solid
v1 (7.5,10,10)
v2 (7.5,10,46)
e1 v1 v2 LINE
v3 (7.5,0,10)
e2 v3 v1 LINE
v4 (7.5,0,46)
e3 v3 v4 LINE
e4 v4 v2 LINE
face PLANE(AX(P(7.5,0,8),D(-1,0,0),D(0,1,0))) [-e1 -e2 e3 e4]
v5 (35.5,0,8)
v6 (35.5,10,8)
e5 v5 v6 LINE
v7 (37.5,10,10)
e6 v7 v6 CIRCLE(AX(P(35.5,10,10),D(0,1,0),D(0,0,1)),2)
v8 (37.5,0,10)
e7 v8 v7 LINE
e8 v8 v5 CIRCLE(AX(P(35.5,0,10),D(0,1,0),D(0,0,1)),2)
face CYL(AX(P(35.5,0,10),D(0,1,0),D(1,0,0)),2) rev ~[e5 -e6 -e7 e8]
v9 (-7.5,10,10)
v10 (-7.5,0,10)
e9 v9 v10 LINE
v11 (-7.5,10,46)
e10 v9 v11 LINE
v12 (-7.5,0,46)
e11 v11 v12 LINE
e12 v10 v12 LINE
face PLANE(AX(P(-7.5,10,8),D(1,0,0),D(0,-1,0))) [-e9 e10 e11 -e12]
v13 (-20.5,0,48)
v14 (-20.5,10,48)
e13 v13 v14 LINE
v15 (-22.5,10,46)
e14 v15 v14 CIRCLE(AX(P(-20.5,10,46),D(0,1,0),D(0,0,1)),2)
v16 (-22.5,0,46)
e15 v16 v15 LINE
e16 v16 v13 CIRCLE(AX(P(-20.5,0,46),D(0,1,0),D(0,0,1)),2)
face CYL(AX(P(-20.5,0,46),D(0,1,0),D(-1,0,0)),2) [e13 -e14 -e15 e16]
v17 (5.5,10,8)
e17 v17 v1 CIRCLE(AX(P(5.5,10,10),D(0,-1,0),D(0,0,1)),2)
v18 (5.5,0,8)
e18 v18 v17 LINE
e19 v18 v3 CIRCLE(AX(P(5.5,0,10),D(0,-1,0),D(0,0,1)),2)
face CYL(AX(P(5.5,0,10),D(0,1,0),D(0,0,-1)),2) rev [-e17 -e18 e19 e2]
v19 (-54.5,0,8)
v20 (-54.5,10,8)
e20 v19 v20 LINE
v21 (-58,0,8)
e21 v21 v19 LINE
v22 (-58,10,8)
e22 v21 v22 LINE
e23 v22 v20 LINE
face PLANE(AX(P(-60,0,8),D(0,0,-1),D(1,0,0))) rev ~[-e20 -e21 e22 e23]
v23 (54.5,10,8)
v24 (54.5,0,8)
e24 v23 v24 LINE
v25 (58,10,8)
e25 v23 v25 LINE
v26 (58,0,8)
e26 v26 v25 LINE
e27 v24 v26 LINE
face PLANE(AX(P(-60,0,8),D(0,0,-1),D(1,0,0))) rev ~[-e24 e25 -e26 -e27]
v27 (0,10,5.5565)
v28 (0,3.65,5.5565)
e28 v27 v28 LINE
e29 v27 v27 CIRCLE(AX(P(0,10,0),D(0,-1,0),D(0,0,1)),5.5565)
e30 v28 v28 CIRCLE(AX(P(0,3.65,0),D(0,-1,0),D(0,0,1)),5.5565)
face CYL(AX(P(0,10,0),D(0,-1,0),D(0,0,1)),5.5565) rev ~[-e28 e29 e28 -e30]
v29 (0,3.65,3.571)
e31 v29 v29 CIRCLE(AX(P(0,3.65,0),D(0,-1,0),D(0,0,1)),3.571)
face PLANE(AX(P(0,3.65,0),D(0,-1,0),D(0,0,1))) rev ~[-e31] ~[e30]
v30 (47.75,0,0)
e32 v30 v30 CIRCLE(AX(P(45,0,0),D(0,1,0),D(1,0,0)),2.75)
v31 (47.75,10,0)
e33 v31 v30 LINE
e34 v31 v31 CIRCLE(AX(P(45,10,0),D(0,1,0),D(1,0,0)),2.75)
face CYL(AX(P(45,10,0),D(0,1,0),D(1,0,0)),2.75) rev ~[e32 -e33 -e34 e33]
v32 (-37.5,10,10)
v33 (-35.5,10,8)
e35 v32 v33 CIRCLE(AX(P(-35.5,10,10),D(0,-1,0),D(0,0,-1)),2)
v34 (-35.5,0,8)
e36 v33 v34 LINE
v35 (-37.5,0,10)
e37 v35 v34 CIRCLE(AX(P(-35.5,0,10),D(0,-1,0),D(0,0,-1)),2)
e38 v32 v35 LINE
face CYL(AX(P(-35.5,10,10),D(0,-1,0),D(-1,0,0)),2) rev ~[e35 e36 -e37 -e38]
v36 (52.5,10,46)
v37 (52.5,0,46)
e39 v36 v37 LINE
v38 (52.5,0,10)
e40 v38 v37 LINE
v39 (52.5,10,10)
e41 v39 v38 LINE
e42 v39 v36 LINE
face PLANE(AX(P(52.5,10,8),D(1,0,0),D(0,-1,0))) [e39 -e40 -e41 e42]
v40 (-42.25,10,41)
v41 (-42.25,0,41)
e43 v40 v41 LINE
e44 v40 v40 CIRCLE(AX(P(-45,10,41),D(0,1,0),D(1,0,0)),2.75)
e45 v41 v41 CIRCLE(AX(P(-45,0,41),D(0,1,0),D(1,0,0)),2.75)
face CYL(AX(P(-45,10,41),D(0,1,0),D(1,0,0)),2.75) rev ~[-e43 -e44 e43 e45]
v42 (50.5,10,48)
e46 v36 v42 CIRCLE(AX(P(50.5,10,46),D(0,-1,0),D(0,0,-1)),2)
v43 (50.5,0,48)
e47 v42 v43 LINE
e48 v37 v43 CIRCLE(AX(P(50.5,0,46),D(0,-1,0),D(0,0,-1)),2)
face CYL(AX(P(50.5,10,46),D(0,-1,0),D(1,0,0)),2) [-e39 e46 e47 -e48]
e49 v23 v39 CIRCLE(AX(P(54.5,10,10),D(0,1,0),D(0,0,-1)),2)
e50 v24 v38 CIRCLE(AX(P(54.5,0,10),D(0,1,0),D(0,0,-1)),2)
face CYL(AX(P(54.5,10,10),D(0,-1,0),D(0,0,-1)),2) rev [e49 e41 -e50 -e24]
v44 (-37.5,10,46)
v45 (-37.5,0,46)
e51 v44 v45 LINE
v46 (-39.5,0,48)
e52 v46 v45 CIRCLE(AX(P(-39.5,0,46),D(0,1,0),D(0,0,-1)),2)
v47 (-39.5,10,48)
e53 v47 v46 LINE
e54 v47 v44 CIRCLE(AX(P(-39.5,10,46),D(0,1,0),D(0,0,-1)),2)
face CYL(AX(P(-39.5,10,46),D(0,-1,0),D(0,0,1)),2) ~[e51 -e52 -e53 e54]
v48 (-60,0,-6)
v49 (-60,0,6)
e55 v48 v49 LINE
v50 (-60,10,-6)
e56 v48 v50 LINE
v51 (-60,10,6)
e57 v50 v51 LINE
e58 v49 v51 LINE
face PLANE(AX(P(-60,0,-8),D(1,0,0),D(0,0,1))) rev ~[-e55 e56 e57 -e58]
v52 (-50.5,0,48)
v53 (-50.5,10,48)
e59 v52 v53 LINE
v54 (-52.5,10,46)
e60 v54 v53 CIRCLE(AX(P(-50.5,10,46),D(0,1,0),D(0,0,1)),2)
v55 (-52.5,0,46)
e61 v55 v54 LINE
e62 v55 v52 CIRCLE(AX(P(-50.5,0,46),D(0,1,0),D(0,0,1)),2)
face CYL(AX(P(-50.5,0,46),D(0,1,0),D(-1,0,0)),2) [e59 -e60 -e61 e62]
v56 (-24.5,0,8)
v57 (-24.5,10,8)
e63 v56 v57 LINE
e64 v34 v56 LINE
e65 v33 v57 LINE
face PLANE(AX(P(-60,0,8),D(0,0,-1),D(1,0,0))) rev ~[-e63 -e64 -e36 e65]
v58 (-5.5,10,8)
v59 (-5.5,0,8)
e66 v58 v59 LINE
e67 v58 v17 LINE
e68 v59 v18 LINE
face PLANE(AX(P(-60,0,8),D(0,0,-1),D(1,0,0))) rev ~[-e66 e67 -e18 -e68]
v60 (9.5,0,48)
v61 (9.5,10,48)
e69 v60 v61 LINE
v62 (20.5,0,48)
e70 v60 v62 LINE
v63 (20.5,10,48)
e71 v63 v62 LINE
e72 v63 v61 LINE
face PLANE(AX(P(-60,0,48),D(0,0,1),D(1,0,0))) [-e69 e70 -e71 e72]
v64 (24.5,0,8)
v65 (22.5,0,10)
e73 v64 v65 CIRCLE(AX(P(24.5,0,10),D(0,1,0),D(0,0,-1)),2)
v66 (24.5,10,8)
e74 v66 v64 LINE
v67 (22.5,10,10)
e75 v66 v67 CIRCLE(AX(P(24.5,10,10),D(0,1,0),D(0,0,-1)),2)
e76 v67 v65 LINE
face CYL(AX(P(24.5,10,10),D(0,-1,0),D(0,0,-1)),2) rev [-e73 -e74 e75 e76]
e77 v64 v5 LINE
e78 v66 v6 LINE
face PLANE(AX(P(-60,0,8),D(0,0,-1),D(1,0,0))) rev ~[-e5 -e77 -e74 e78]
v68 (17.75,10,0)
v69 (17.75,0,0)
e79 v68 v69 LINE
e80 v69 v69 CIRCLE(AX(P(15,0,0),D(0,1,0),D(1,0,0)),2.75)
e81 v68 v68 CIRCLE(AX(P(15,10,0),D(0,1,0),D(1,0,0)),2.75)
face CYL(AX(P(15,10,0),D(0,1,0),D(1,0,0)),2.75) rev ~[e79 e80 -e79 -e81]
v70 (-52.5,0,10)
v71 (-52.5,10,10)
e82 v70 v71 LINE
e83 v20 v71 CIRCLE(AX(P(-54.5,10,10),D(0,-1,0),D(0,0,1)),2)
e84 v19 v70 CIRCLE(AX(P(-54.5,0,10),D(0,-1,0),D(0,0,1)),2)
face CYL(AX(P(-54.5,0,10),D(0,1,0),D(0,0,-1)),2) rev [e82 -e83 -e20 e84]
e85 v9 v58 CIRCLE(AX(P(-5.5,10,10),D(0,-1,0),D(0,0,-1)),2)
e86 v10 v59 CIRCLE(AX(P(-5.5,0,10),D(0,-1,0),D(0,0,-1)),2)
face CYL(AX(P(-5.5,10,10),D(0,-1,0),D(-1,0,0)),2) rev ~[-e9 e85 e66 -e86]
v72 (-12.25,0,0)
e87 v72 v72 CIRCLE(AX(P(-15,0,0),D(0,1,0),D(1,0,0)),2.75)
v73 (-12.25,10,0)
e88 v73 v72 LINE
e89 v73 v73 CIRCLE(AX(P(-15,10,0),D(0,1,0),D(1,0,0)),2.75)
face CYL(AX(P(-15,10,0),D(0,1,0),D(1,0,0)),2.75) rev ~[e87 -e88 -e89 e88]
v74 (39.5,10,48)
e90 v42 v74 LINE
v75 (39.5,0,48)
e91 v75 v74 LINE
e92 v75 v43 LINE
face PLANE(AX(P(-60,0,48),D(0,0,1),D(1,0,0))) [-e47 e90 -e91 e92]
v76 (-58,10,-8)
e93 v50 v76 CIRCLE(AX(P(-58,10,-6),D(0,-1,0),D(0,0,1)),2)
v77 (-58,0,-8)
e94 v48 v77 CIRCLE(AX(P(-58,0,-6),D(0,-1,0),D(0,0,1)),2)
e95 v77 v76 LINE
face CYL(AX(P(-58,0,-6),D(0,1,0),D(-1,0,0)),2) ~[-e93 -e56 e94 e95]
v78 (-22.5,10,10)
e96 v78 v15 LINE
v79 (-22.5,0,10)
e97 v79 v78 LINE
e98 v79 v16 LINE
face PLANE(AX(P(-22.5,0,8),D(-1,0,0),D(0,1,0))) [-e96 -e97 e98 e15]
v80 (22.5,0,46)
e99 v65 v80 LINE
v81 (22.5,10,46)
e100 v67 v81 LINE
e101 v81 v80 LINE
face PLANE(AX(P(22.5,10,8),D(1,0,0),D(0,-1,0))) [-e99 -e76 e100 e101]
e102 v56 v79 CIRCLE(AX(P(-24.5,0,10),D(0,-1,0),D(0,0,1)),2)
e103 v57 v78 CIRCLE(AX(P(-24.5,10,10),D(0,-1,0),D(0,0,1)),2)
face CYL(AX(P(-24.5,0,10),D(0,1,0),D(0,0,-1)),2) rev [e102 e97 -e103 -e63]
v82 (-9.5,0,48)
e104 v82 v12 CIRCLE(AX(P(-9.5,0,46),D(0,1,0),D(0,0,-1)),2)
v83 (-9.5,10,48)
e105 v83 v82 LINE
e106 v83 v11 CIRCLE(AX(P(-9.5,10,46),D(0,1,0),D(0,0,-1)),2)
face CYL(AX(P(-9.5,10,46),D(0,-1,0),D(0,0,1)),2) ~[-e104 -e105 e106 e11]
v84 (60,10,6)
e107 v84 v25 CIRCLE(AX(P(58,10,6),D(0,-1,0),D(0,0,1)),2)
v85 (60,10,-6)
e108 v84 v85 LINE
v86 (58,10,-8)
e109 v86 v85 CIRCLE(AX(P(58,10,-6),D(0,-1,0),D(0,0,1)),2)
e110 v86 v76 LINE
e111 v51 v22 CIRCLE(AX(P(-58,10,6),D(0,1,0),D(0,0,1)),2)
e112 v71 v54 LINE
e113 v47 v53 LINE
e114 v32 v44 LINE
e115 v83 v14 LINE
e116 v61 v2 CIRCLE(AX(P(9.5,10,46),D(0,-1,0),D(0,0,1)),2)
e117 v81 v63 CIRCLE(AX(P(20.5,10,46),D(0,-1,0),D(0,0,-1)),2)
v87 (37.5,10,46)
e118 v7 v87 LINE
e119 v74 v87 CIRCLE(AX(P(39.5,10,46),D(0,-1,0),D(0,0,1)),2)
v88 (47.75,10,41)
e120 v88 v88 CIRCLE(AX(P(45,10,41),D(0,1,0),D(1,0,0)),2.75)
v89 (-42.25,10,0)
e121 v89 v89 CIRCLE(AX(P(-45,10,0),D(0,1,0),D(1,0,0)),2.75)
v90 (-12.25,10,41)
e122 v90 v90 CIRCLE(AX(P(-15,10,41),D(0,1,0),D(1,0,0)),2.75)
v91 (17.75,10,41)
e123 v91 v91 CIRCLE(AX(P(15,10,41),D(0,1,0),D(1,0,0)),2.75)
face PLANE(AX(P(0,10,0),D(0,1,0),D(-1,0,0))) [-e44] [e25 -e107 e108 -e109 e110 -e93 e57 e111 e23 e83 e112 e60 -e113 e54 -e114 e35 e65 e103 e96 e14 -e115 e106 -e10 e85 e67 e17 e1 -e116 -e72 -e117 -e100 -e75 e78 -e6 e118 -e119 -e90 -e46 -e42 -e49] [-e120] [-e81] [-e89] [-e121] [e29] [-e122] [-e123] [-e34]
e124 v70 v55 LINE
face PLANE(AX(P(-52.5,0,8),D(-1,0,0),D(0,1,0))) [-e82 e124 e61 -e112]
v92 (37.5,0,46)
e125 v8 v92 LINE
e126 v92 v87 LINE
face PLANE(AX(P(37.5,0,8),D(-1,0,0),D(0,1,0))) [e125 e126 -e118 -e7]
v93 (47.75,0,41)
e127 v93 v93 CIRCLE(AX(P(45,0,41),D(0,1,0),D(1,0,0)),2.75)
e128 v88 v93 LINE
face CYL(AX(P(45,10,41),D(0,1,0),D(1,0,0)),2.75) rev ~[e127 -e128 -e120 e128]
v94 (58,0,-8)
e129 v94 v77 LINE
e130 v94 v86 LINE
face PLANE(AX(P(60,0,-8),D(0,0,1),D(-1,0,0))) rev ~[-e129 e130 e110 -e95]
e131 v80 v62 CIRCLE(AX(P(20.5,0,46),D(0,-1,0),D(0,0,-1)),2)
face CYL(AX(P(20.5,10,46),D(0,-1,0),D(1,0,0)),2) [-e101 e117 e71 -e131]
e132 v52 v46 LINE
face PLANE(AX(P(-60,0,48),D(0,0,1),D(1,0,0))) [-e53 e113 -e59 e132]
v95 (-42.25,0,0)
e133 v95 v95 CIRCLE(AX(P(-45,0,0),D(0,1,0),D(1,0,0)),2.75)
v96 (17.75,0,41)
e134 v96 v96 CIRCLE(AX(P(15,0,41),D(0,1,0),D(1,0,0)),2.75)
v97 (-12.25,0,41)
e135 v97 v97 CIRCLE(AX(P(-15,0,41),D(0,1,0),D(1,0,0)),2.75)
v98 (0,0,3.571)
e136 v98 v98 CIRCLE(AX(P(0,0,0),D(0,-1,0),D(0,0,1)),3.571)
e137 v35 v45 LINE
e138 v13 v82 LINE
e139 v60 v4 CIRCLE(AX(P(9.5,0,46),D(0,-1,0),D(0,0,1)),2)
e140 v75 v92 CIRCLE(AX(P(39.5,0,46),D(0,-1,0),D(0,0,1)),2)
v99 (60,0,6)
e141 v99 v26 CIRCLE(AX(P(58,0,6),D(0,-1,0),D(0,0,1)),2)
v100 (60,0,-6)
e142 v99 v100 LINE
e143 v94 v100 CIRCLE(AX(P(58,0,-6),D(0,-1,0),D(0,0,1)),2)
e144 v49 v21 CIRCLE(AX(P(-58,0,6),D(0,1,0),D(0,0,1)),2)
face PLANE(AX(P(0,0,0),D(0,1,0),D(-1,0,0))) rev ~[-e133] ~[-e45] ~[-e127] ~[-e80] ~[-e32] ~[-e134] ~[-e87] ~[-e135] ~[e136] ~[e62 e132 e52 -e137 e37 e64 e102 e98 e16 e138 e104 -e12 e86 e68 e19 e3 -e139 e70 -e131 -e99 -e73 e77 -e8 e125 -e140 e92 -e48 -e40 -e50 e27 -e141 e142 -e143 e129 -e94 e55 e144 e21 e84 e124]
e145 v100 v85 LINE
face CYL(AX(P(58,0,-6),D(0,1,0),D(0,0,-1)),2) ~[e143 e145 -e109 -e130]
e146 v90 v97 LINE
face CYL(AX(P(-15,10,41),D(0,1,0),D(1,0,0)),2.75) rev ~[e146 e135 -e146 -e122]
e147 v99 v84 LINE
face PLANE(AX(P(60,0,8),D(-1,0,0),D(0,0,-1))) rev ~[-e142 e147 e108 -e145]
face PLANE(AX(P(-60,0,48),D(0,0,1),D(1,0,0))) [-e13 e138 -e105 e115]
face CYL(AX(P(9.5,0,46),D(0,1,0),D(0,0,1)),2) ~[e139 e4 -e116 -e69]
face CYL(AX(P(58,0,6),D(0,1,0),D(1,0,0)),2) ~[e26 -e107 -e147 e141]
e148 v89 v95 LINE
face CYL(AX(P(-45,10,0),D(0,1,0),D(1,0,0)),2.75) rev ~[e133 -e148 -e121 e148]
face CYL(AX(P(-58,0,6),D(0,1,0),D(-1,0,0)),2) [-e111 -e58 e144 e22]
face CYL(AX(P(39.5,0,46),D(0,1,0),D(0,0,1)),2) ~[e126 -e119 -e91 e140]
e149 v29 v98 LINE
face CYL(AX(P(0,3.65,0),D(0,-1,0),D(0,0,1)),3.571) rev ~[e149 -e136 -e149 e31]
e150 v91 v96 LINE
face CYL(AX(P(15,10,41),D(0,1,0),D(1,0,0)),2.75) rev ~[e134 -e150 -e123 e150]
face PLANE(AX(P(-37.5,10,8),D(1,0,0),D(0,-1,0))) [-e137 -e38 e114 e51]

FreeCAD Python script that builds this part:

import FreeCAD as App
import Part
import Sketcher
from FreeCAD import Vector


def edges_at(feature, points):
    """Names of the edges that pass closest to the given points."""
    edges = feature.Shape.Edges
    near = lambda p: min(range(len(edges)), key=lambda i: edges[i].distToShape(Part.Vertex(*p))[0])
    return sorted({f"Edge{near(p) + 1}" for p in points})

doc = App.newDocument("Part")
body = doc.addObject("PartDesign::Body", "Body")

# Sketch on XZ plane
sketch1 = body.newObject("Sketcher::SketchObject", "Sketch")
sketch1.AttachmentSupport = (doc.getObject("XZ_Plane"), [""])
sketch1.MapMode = "FlatFace"
sketch1.addGeometry([
    Part.LineSegment(Vector(-60, -8, 0), Vector(-60, 8, 0)),
    Part.LineSegment(Vector(-60, 8, 0), Vector(60, 8, 0)),
    Part.LineSegment(Vector(60, 8, 0), Vector(60, -8, 0)),
    Part.LineSegment(Vector(60, -8, 0), Vector(-60, -8, 0)),
], False)
sketch1.addConstraint([
    Sketcher.Constraint("Coincident", 0, 2, 1, 1),
    Sketcher.Constraint("Coincident", 1, 2, 2, 1),
    Sketcher.Constraint("Coincident", 2, 2, 3, 1),
    Sketcher.Constraint("Coincident", 3, 2, 0, 1),
    Sketcher.Constraint("Vertical", 0),
    Sketcher.Constraint("Horizontal", 1),
    Sketcher.Constraint("Vertical", 2),
    Sketcher.Constraint("Horizontal", 3),
    Sketcher.Constraint("Symmetric", 0, 2, 2, 2, -1, 1),
    Sketcher.Constraint("DistanceX", 1, 1, 1, 2, 120.0),
    Sketcher.Constraint("DistanceY", 0, 1, 0, 2, 16.0),
])
pad1 = body.newObject("PartDesign::Pad", "Pad")
pad1.Profile = sketch1
pad1.Length = 10
pad1.Reversed = True

# Sketch on XZ plane
sketch2 = body.newObject("Sketcher::SketchObject", "Sketch001")
sketch2.AttachmentSupport = (doc.getObject("XZ_Plane"), [""])
sketch2.MapMode = "FlatFace"
sketch2.AttachmentOffset = App.Placement(Vector(0, 0, -10), App.Rotation())
sketch2.addGeometry(Part.Circle(Vector(0, 0, 0), Vector(0, 0, 1), 3.571), False)
sketch2.addConstraint([
    Sketcher.Constraint("Coincident", 0, 3, -1, 1),
    Sketcher.Constraint("Diameter", 0, 7.142),
])
doc.recompute()
hole = body.newObject("PartDesign::Hole", "Hole")
hole.Profile = sketch2
hole.ThreadType = "None"
hole.Diameter = 7.142
hole.DepthType = "Dimension"
hole.Depth = 25.4
hole.DrillPoint = "Flat"
hole.HoleCutType = "Counterbore"
hole.HoleCutDiameter = 11.113
hole.HoleCutDepth = 6.35
hole.Reversed = True

# Sketch on XZ plane
sketch3 = body.newObject("Sketcher::SketchObject", "Sketch002")
sketch3.AttachmentSupport = (doc.getObject("XZ_Plane"), [""])
sketch3.MapMode = "FlatFace"
sketch3.AttachmentOffset = App.Placement(Vector(0, 0, -10), App.Rotation())
sketch3.addGeometry([
    Part.Circle(Vector(15, 0, 0), Vector(0, 0, 1), 2.75),
    Part.Circle(Vector(45, 0, 0), Vector(0, 0, 1), 2.75),
    Part.Circle(Vector(-15, 0, 0), Vector(0, 0, 1), 2.75),
    Part.Circle(Vector(-45, 0, 0), Vector(0, 0, 1), 2.75),
], False)
sketch3.addConstraint([
    Sketcher.Constraint("Equal", 0, 1),
    Sketcher.Constraint("Equal", 1, 2),
    Sketcher.Constraint("Equal", 2, 3),
    Sketcher.Constraint("Symmetric", 0, 3, 2, 3, -1, 1),
    Sketcher.Constraint("Symmetric", 1, 3, 3, 3, -1, 1),
    Sketcher.Constraint("PointOnObject", 0, 3, -1),
    Sketcher.Constraint("PointOnObject", 1, 3, -1),
    Sketcher.Constraint("Diameter", 0, 5.5),
    Sketcher.Constraint("DistanceX", -1, 1, 0, 3, 15.0),
    Sketcher.Constraint("DistanceX", 0, 3, 1, 3, 30.0),
])
pocket1 = body.newObject("PartDesign::Pocket", "Pocket")
pocket1.Profile = sketch3
pocket1.Length = 10
pocket1.Reversed = True

# Sketch on XY plane
sketch4 = body.newObject("Sketcher::SketchObject", "Sketch003")
sketch4.AttachmentSupport = (doc.getObject("XY_Plane"), [""])
sketch4.MapMode = "FlatFace"
sketch4.AttachmentOffset = App.Placement(Vector(0, 0, 8), App.Rotation())
sketch4.addGeometry([
    Part.LineSegment(Vector(52.5, 0, 0), Vector(52.5, 10, 0)),  # 0
    Part.LineSegment(Vector(52.5, 10, 0), Vector(37.5, 10, 0)),  # 1
    Part.LineSegment(Vector(37.5, 10, 0), Vector(37.5, 0, 0)),  # 2
    Part.LineSegment(Vector(37.5, 0, 0), Vector(52.5, 0, 0)),  # 3
    Part.LineSegment(Vector(22.5, 0, 0), Vector(22.5, 10, 0)),  # 4
    Part.LineSegment(Vector(22.5, 10, 0), Vector(7.5, 10, 0)),  # 5
    Part.LineSegment(Vector(7.5, 10, 0), Vector(7.5, 0, 0)),  # 6
    Part.LineSegment(Vector(7.5, 0, 0), Vector(22.5, 0, 0)),  # 7
    Part.LineSegment(Vector(-7.5, 0, 0), Vector(-7.5, 10, 0)),  # 8
    Part.LineSegment(Vector(-7.5, 10, 0), Vector(-22.5, 10, 0)),  # 9
    Part.LineSegment(Vector(-22.5, 10, 0), Vector(-22.5, 0, 0)),  # 10
    Part.LineSegment(Vector(-22.5, 0, 0), Vector(-7.5, 0, 0)),  # 11
    Part.LineSegment(Vector(-37.5, 0, 0), Vector(-37.5, 10, 0)),  # 12
    Part.LineSegment(Vector(-37.5, 10, 0), Vector(-52.5, 10, 0)),  # 13
    Part.LineSegment(Vector(-52.5, 10, 0), Vector(-52.5, 0, 0)),  # 14
    Part.LineSegment(Vector(-52.5, 0, 0), Vector(-37.5, 0, 0)),  # 15
], False)
sketch4.addConstraint([
    Sketcher.Constraint("Coincident", 0, 2, 1, 1),
    Sketcher.Constraint("Coincident", 1, 2, 2, 1),
    Sketcher.Constraint("Coincident", 2, 2, 3, 1),
    Sketcher.Constraint("Coincident", 3, 2, 0, 1),
    Sketcher.Constraint("Coincident", 4, 2, 5, 1),
    Sketcher.Constraint("Coincident", 5, 2, 6, 1),
    Sketcher.Constraint("Coincident", 6, 2, 7, 1),
    Sketcher.Constraint("Coincident", 7, 2, 4, 1),
    Sketcher.Constraint("Coincident", 8, 2, 9, 1),
    Sketcher.Constraint("Coincident", 9, 2, 10, 1),
    Sketcher.Constraint("Coincident", 10, 2, 11, 1),
    Sketcher.Constraint("Coincident", 11, 2, 8, 1),
    Sketcher.Constraint("Coincident", 12, 2, 13, 1),
    Sketcher.Constraint("Coincident", 13, 2, 14, 1),
    Sketcher.Constraint("Coincident", 14, 2, 15, 1),
    Sketcher.Constraint("Coincident", 15, 2, 12, 1),
    Sketcher.Constraint("Vertical", 0),
    Sketcher.Constraint("Horizontal", 1),
    Sketcher.Constraint("Vertical", 2),
    Sketcher.Constraint("Horizontal", 3),
    Sketcher.Constraint("Vertical", 4),
    Sketcher.Constraint("Horizontal", 5),
    Sketcher.Constraint("Vertical", 6),
    Sketcher.Constraint("Horizontal", 7),
    Sketcher.Constraint("Vertical", 8),
    Sketcher.Constraint("Horizontal", 9),
    Sketcher.Constraint("Vertical", 10),
    Sketcher.Constraint("Horizontal", 11),
    Sketcher.Constraint("Vertical", 12),
    Sketcher.Constraint("Horizontal", 13),
    Sketcher.Constraint("Vertical", 14),
    Sketcher.Constraint("Horizontal", 15),
    Sketcher.Constraint("Symmetric", 7, 2, 10, 2, -1, 1),
    Sketcher.Constraint("Symmetric", 3, 2, 14, 2, -1, 1),
    Sketcher.Constraint("Symmetric", 5, 2, 8, 2, -2),
    Sketcher.Constraint("Symmetric", 1, 2, 12, 2, -2),
    Sketcher.Constraint("PointOnObject", 2, 2, -1),
    Sketcher.Constraint("PointOnObject", 6, 2, -1),
    Sketcher.Constraint("Horizontal", 1, 2, 4, 2),
    Sketcher.Constraint("Equal", 3, 5),
    Sketcher.Constraint("DistanceX", 1, 2, 1, 1, 15.0),
    Sketcher.Constraint("DistanceX", 4, 2, 1, 2, 15.0),
    Sketcher.Constraint("DistanceX", 8, 2, 5, 2, 15.0),
    Sketcher.Constraint("DistanceY", 0, 1, 0, 2, 10.0),
])
pad2 = body.newObject("PartDesign::Pad", "Pad001")
pad2.Profile = sketch4
pad2.Length = 40

# Sketch on XZ plane
sketch5 = body.newObject("Sketcher::SketchObject", "Sketch004")
sketch5.AttachmentSupport = (doc.getObject("XZ_Plane"), [""])
sketch5.MapMode = "FlatFace"
sketch5.AttachmentOffset = App.Placement(Vector(0, 0, -10), App.Rotation())
sketch5.addGeometry([
    Part.Circle(Vector(-45, 41, 0), Vector(0, 0, 1), 2.75),  # 0
    Part.Circle(Vector(-15, 41, 0), Vector(0, 0, 1), 2.75),  # 1
    Part.Circle(Vector(15, 41, 0), Vector(0, 0, 1), 2.75),  # 2
    Part.Circle(Vector(45, 41, 0), Vector(0, 0, 1), 2.75),  # 3
    Part.Circle(Vector(75, 41, 0), Vector(0, 0, 1), 2.75),  # 4
], False)
sketch5.addConstraint([
    Sketcher.Constraint("Equal", 0, 1),
    Sketcher.Constraint("Equal", 1, 2),
    Sketcher.Constraint("Equal", 2, 3),
    Sketcher.Constraint("Equal", 3, 4),
    Sketcher.Constraint("Symmetric", 1, 3, 2, 3, -2),
    Sketcher.Constraint("Symmetric", 0, 3, 3, 3, -2),
    Sketcher.Constraint("Horizontal", 0, 3, 1, 3),
    Sketcher.Constraint("Horizontal", 3, 3, 4, 3),
    Sketcher.Constraint("Diameter", 0, 5.5),
    Sketcher.Constraint("DistanceY", -1, 1, 0, 3, 41.0),
    Sketcher.Constraint("DistanceX", 0, 3, -1, 1, 45.0),
    Sketcher.Constraint("DistanceX", 1, 3, -1, 1, 15.0),
    Sketcher.Constraint("DistanceX", -1, 1, 4, 3, 75.0),
])
pocket2 = body.newObject("PartDesign::Pocket", "Pocket001")
pocket2.Profile = sketch5
pocket2.Type = "UpToFirst"
pocket2.Reversed = True
doc.recompute()

fillet = body.newObject("PartDesign::Fillet", "Fillet")
fillet.Base = (pocket2, edges_at(pocket2, [
    (-52.5, 5, 48),
    (-37.5, 5, 48),
    (-22.5, 5, 48),
    (-7.5, 5, 48),
    (7.5, 5, 48),
    (22.5, 5, 48),
    (37.5, 5, 48),
    (52.5, 5, 48),
    (-60, 5, 8),
    (-60, 5, -8),
    (-52.5, 5, 8),
    (-37.5, 5, 8),
    (-22.5, 5, 8),
    (7.5, 5, 8),
    (37.5, 5, 8),
    (52.5, 5, 8),
    (22.5, 5, 8),
    (-7.5, 5, 8),
    (60, 5, 8),
    (60, 5, -8),
]))
fillet.Radius = 2

doc.recompute()
